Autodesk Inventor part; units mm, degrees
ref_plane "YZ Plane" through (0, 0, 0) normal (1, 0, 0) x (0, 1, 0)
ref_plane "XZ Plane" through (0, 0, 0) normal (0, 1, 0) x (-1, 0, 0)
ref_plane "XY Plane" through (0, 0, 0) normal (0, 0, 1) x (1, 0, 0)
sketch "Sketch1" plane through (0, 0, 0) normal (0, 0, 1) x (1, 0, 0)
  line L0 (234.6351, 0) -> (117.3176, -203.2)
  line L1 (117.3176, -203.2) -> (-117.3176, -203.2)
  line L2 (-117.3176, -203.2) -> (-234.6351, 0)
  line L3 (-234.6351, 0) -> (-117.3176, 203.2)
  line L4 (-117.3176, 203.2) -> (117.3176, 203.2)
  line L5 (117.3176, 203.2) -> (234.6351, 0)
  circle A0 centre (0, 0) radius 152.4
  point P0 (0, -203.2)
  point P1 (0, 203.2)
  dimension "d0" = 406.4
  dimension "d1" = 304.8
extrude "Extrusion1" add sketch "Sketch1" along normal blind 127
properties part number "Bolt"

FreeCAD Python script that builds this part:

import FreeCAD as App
import Part
import Sketcher
Q = App.Units.Quantity

doc = App.newDocument("Part")
body = doc.addObject("PartDesign::Body", "Body")

sketch1 = body.newObject("Sketcher::SketchObject", "Sketch")
sketch1.AttachmentSupport = (doc.getObject("XY_Plane"), [""])
sketch1.MapMode = "FlatFace"
sketch1.addGeometry(Part.LineSegment(App.Vector(117, -203, 0), App.Vector(235, 0, 0)), False)
sketch1.addGeometry(Part.LineSegment(App.Vector(235, 0, 0), App.Vector(117, 203, 0)), False)
sketch1.addGeometry(Part.LineSegment(App.Vector(117, 203, 0), App.Vector(-117, 203, 0)), False)
sketch1.addGeometry(Part.LineSegment(App.Vector(-117, 203, 0), App.Vector(-235, 0, 0)), False)
sketch1.addGeometry(Part.LineSegment(App.Vector(-235, 0, 0), App.Vector(-117, -203, 0)), False)
sketch1.addGeometry(Part.LineSegment(App.Vector(-117, -203, 0), App.Vector(117, -203, 0)), False)
sketch1.addGeometry(Part.Circle(App.Vector(0, 0, 0), App.Vector(0, 0, 1), 152), False)
sketch1.addConstraint(Sketcher.Constraint("Coincident", 0, 2, 1, 1))
sketch1.addConstraint(Sketcher.Constraint("Coincident", 1, 2, 2, 1))
sketch1.addConstraint(Sketcher.Constraint("Coincident", 2, 2, 3, 1))
sketch1.addConstraint(Sketcher.Constraint("Coincident", 3, 2, 4, 1))
sketch1.addConstraint(Sketcher.Constraint("Coincident", 4, 2, 5, 1))
sketch1.addConstraint(Sketcher.Constraint("Coincident", 5, 2, 0, 1))
sketch1.addConstraint(Sketcher.Constraint("Horizontal", 2))
sketch1.addConstraint(Sketcher.Constraint("Horizontal", 5))
sketch1.addConstraint(Sketcher.Constraint("Coincident", 6, 3, -1, 1))
sketch1.addConstraint(Sketcher.Constraint("Symmetric", 0, 2, 3, 2, -1, 1))
sketch1.addConstraint(Sketcher.Constraint("Symmetric", 1, 2, 4, 2, -1, 1))
sketch1.addConstraint(Sketcher.Constraint("PointOnObject", 0, 2, -1))
sketch1.addConstraint(Sketcher.Constraint("Parallel", 0, 3))
sketch1.addConstraint(Sketcher.Constraint("Vertical", 2, 2, 4, 2))
sketch1.addConstraint(Sketcher.Constraint("Diameter", 6, Q("12 in")))
sketch1.addConstraint(Sketcher.Constraint("DistanceY", 4, 2, 2, 2, Q("16 in")))
sketch1.addConstraint(Sketcher.Constraint("Angle", 0, Q("60 deg")))
sketch1.addConstraint(Sketcher.Constraint("DistanceX", 2, 2, 2, 1, Q("9.2376 in")))
pad1 = body.newObject("PartDesign::Pad", "Pad")
pad1.Profile = sketch1
pad1.Length = Q("5 in")

doc.recompute()
